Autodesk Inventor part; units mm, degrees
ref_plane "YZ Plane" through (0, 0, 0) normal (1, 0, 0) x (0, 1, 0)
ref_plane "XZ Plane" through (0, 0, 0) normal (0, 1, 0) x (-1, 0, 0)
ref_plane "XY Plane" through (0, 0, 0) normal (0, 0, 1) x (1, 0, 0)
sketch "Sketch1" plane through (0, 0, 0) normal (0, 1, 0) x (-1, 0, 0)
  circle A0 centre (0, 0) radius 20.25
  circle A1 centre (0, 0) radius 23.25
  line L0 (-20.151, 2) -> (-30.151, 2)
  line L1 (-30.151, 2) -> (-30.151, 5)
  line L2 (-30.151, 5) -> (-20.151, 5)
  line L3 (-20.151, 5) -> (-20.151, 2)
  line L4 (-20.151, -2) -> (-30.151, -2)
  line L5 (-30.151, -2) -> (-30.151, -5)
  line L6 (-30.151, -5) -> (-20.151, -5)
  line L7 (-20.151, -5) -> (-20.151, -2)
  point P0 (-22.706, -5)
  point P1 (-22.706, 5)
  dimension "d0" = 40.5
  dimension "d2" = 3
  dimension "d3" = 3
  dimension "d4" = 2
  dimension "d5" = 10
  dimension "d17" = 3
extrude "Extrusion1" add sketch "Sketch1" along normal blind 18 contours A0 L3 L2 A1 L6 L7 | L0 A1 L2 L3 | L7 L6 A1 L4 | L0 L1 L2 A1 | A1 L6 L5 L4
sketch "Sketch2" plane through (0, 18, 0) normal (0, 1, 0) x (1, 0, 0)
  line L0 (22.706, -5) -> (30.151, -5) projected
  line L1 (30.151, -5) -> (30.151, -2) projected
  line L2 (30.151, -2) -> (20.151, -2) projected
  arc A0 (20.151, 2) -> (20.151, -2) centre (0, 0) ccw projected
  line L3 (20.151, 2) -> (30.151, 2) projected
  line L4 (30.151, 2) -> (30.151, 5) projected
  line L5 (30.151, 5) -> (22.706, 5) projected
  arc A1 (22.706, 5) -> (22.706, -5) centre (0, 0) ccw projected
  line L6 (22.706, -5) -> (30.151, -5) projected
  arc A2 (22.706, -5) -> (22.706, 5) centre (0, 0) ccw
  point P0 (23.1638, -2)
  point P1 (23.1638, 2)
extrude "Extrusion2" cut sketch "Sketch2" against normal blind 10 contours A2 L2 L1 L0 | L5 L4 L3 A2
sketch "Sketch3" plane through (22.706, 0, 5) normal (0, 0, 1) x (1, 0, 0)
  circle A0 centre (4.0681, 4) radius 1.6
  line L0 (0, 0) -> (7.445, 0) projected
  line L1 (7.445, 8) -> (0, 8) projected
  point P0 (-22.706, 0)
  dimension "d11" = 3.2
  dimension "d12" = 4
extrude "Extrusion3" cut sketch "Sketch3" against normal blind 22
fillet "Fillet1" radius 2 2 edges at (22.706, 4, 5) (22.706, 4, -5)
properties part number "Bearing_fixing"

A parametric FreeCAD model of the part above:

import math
import FreeCAD as App
import Part
import Sketcher
from FreeCAD import Vector
Q = App.Units.Quantity


def edges_at(feature, points):
    """Names of the edges that pass closest to the given points."""
    edges = feature.Shape.Edges
    near = lambda p: min(range(len(edges)), key=lambda i: edges[i].distToShape(Part.Vertex(*p))[0])
    return sorted({f"Edge{near(p) + 1}" for p in points})

doc = App.newDocument("Part")
body = doc.addObject("PartDesign::Body", "Body")

sketch1 = body.newObject("Sketcher::SketchObject", "Sketch")
sketch1.AttachmentSupport = (doc.getObject("XZ_Plane"), [""])
sketch1.MapMode = "FlatFace"
sketch1.addGeometry(Part.ArcOfCircle(Part.Circle(Vector(0, 0, 0), Vector(0, 0, 1), 20.25), math.radians(5.668081), math.radians(354.331919)), False)
sketch1.addGeometry(Part.LineSegment(Vector(20.151, -2, 0), Vector(30.151, -2, 0)), False)
sketch1.addGeometry(Part.LineSegment(Vector(30.151, -2, 0), Vector(30.151, -5, 0)), False)
sketch1.addGeometry(Part.LineSegment(Vector(30.151, -5, 0), Vector(22.706001, -5, 0)), False)
sketch1.addGeometry(Part.ArcOfCircle(Part.Circle(Vector(0, 0, 0), Vector(0, 0, 1), 23.25), math.radians(12.418682), math.radians(347.581318)), False)
sketch1.addGeometry(Part.LineSegment(Vector(22.706001, 5, 0), Vector(30.151, 5, 0)), False)
sketch1.addGeometry(Part.LineSegment(Vector(30.151, 5, 0), Vector(30.151, 2, 0)), False)
sketch1.addGeometry(Part.LineSegment(Vector(30.151, 2, 0), Vector(20.151, 2, 0)), False)
sketch1.addConstraint(Sketcher.Constraint("Coincident", 0, 2, 1, 1))
sketch1.addConstraint(Sketcher.Constraint("Coincident", 1, 2, 2, 1))
sketch1.addConstraint(Sketcher.Constraint("Coincident", 2, 2, 3, 1))
sketch1.addConstraint(Sketcher.Constraint("Coincident", 3, 2, 4, 2))
sketch1.addConstraint(Sketcher.Constraint("Coincident", 4, 1, 5, 1))
sketch1.addConstraint(Sketcher.Constraint("Coincident", 5, 2, 6, 1))
sketch1.addConstraint(Sketcher.Constraint("Coincident", 6, 2, 7, 1))
sketch1.addConstraint(Sketcher.Constraint("Coincident", 7, 2, 0, 1))
sketch1.addConstraint(Sketcher.Constraint("Horizontal", 1))
sketch1.addConstraint(Sketcher.Constraint("Vertical", 2))
sketch1.addConstraint(Sketcher.Constraint("Horizontal", 3))
sketch1.addConstraint(Sketcher.Constraint("Horizontal", 5))
sketch1.addConstraint(Sketcher.Constraint("Vertical", 6))
sketch1.addConstraint(Sketcher.Constraint("Horizontal", 7))
sketch1.addConstraint(Sketcher.Constraint("Coincident", 0, 3, -1, 1))
sketch1.addConstraint(Sketcher.Constraint("Coincident", 4, 3, -1, 1))
sketch1.addConstraint(Sketcher.Constraint("Symmetric", 2, 2, 5, 2, -1))
sketch1.addConstraint(Sketcher.Constraint("Vertical", 0, 2, 7, 2))
sketch1.addConstraint(Sketcher.Constraint("DistanceX", 1, 1, 1, 2, Q("10 mm")))
sketch1.addConstraint(Sketcher.Constraint("DistanceY", 2, 2, 2, 1, Q("3 mm")))
sketch1.addConstraint(Sketcher.Constraint("Radius", 0, Q("20.25 mm")))
sketch1.addConstraint(Sketcher.Constraint("DistanceY", 0, 2, -1, 1, Q("2 mm")))
sketch1.addConstraint(Sketcher.Constraint("Radius", 4, Q("23.25 mm")))
pad1 = body.newObject("PartDesign::Pad", "Pad")
pad1.Profile = sketch1
pad1.Length = 18
pad1.Reversed = True

sketch2 = body.newObject("Sketcher::SketchObject", "Sketch001")
sketch2.AttachmentSupport = (doc.getObject("XZ_Plane"), [""])
sketch2.MapMode = "FlatFace"
sketch2.AttachmentOffset = App.Placement(Vector(0, 0, -18), App.Rotation())
sketch2.addGeometry(Part.ArcOfCircle(Part.Circle(Vector(0, 0, 0), Vector(0, 0, 1), 23.249999), math.radians(4.934768), math.radians(12.418682)), False)
sketch2.addGeometry(Part.LineSegment(Vector(22.706, 5, 0), Vector(30.151, 5, 0)), False)
sketch2.addGeometry(Part.LineSegment(Vector(30.151, 5, 0), Vector(30.151, 2, 0)), False)
sketch2.addGeometry(Part.LineSegment(Vector(30.151, 2, 0), Vector(23.163817, 2, 0)), False)
sketch2.addGeometry(Part.LineSegment(Vector(30.151, -5, 0), Vector(22.706, -5, 0)), False)
sketch2.addGeometry(Part.ArcOfCircle(Part.Circle(Vector(0, 0, 0), Vector(0, 0, 1), 23.249999), math.radians(-12.418682), math.radians(-4.934768)), False)
sketch2.addGeometry(Part.LineSegment(Vector(23.163817, -2, 0), Vector(30.151, -2, 0)), False)
sketch2.addGeometry(Part.LineSegment(Vector(30.151, -2, 0), Vector(30.151, -5, 0)), False)
sketch2.addConstraint(Sketcher.Constraint("Coincident", 0, 2, 1, 1))
sketch2.addConstraint(Sketcher.Constraint("Coincident", 1, 2, 2, 1))
sketch2.addConstraint(Sketcher.Constraint("Coincident", 2, 2, 3, 1))
sketch2.addConstraint(Sketcher.Constraint("Coincident", 3, 2, 0, 1))
sketch2.addConstraint(Sketcher.Constraint("Coincident", 4, 2, 5, 1))
sketch2.addConstraint(Sketcher.Constraint("Coincident", 5, 2, 6, 1))
sketch2.addConstraint(Sketcher.Constraint("Coincident", 6, 2, 7, 1))
sketch2.addConstraint(Sketcher.Constraint("Coincident", 7, 2, 4, 1))
sketch2.addConstraint(Sketcher.Constraint("Horizontal", 1))
sketch2.addConstraint(Sketcher.Constraint("Vertical", 2))
sketch2.addConstraint(Sketcher.Constraint("Horizontal", 3))
sketch2.addConstraint(Sketcher.Constraint("Horizontal", 4))
sketch2.addConstraint(Sketcher.Constraint("Horizontal", 6))
sketch2.addConstraint(Sketcher.Constraint("Vertical", 7))
sketch2.addConstraint(Sketcher.Constraint("Coincident", 0, 3, -1, 1))
sketch2.addConstraint(Sketcher.Constraint("Coincident", 5, 3, -1, 1))
sketch2.addConstraint(Sketcher.Constraint("Equal", 0, 5))
sketch2.addConstraint(Sketcher.Constraint("Symmetric", 2, 2, 6, 2, -1))
sketch2.addConstraint(Sketcher.Constraint("Vertical", 0, 2, 4, 2))
sketch2.addConstraint(Sketcher.Constraint("DistanceY", 2, 2, 2, 1, Q("3 mm")))
sketch2.addConstraint(Sketcher.Constraint("Radius", 0, Q("23.25 mm")))
sketch2.addConstraint(Sketcher.Constraint("DistanceY", -1, 1, 0, 2, Q("5 mm")))
sketch2.addConstraint(Sketcher.Constraint("DistanceX", 1, 1, 1, 2, Q("7.445 mm")))
pocket1 = body.newObject("PartDesign::Pocket", "Pocket")
pocket1.Profile = sketch2
pocket1.Length = 10
pocket1.Reversed = True

sketch3 = body.newObject("Sketcher::SketchObject", "Sketch002")
sketch3.AttachmentSupport = (doc.getObject("XY_Plane"), [""])
sketch3.MapMode = "FlatFace"
sketch3.AttachmentOffset = App.Placement(Vector(0, 0, 5), App.Rotation())
sketch3.addGeometry(Part.Circle(Vector(26.7741, 4, 0), Vector(0, 0, 1), 1.6), False)
sketch3.addConstraint(Sketcher.Constraint("Diameter", 0, Q("3.2 mm")))
sketch3.addConstraint(Sketcher.Constraint("DistanceY", -1, 1, 0, 3, Q("4 mm")))
sketch3.addConstraint(Sketcher.Constraint("DistanceX", -1, 1, 0, 3, Q("26.774 mm")))
pocket2 = body.newObject("PartDesign::Pocket", "Pocket001")
pocket2.Profile = sketch3
pocket2.Length = 22
doc.recompute()

fillet = body.newObject("PartDesign::Fillet", "Fillet")
fillet.Base = (pocket2, edges_at(pocket2, [(22.706, 4, 5), (22.706, 4, -5)]))
fillet.Radius = 2

doc.recompute()
